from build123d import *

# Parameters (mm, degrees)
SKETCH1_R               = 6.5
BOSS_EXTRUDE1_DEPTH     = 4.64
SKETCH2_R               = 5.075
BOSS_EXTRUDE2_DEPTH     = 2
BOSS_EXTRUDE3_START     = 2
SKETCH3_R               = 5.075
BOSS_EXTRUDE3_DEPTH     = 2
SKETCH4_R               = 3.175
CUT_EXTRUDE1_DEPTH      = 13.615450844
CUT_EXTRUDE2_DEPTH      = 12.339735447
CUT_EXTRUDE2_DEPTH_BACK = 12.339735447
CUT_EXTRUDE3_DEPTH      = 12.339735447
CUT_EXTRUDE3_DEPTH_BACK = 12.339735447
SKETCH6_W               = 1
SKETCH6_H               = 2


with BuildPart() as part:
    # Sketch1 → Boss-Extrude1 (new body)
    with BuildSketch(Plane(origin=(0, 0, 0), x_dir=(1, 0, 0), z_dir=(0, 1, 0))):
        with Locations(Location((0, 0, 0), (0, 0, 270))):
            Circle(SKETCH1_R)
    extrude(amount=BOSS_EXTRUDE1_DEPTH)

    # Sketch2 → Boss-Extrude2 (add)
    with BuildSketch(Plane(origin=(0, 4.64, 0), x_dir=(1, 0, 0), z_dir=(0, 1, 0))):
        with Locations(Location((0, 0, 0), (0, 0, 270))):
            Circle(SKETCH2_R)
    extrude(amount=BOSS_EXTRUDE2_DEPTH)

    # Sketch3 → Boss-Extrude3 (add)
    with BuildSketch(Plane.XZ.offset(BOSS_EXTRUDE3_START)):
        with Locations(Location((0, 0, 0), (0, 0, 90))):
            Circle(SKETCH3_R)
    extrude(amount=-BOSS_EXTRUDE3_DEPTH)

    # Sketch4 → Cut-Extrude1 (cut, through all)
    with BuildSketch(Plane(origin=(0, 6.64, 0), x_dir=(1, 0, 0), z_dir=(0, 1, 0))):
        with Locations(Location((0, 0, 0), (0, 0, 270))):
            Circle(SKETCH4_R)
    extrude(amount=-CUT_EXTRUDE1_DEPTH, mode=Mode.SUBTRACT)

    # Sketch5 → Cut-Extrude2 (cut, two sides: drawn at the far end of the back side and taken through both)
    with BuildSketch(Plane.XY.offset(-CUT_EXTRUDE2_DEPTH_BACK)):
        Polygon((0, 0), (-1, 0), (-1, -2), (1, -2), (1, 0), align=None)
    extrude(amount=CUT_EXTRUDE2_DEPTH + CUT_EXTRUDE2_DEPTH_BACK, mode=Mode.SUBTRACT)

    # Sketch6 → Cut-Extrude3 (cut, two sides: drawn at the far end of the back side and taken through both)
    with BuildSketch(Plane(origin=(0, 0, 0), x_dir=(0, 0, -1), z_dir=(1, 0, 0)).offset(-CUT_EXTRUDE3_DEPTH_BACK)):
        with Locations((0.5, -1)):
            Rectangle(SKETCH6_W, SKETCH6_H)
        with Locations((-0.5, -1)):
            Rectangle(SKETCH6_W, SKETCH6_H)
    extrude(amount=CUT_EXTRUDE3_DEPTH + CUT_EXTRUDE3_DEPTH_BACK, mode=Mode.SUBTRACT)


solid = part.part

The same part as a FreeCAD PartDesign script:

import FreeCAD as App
import Part
import Sketcher
from FreeCAD import Vector


def add_polygon(sketch, points):
    """Adds a closed chain of lines whose ends are joined by coincident constraints."""
    first, n = sketch.GeometryCount, len(points)
    for a, b in zip(points, points[1:] + points[:1]):
        sketch.addGeometry(Part.LineSegment(App.Vector(*a, 0), App.Vector(*b, 0)), False)
    for i in range(n):
        sketch.addConstraint(Sketcher.Constraint("Coincident", first + i, 2, first + (i + 1) % n, 1))

doc = App.newDocument("Part")
body = doc.addObject("PartDesign::Body", "Body")

# Sketch on XZ plane
sketch1 = body.newObject("Sketcher::SketchObject", "Sketch")
sketch1.AttachmentSupport = (doc.getObject("XZ_Plane"), [""])
sketch1.MapMode = "FlatFace"
sketch1.addGeometry(Part.Circle(Vector(0, 0, 0), Vector(0, 0, 1), 6), False)
sketch1.addConstraint([
    Sketcher.Constraint("Coincident", 0, 3, -1, 1),
    Sketcher.Constraint("Diameter", 0, 13.0),
])
pad1 = body.newObject("PartDesign::Pad", "Pad")
pad1.Profile = sketch1
pad1.Length = 4.64
pad1.Reversed = True

# Sketch on XZ plane
sketch2 = body.newObject("Sketcher::SketchObject", "Sketch001")
sketch2.AttachmentSupport = (doc.getObject("XZ_Plane"), [""])
sketch2.MapMode = "FlatFace"
sketch2.AttachmentOffset = App.Placement(Vector(0, 0, -4.64), App.Rotation())
sketch2.addGeometry(Part.Circle(Vector(0, 0, 0), Vector(0, 0, 1), 5), False)
sketch2.addConstraint([
    Sketcher.Constraint("Coincident", 0, 3, -1, 1),
    Sketcher.Constraint("Diameter", 0, 10.15),
])
pad2 = body.newObject("PartDesign::Pad", "Pad001")
pad2.Profile = sketch2
pad2.Length = 2
pad2.Reversed = True

# Sketch on XZ plane
sketch3 = body.newObject("Sketcher::SketchObject", "Sketch002")
sketch3.AttachmentSupport = (doc.getObject("XZ_Plane"), [""])
sketch3.MapMode = "FlatFace"
sketch3.AttachmentOffset = App.Placement(Vector(0, 0, 2), App.Rotation())
sketch3.addGeometry(Part.Circle(Vector(0, 0, 0), Vector(0, 0, 1), 5), False)
sketch3.addConstraint([
    Sketcher.Constraint("Coincident", 0, 3, -1, 1),
    Sketcher.Constraint("Diameter", 0, 10.15),
])
pad3 = body.newObject("PartDesign::Pad", "Pad002")
pad3.Profile = sketch3
pad3.Length = 2
pad3.Reversed = True

# Sketch on XZ plane
sketch4 = body.newObject("Sketcher::SketchObject", "Sketch003")
sketch4.AttachmentSupport = (doc.getObject("XZ_Plane"), [""])
sketch4.MapMode = "FlatFace"
sketch4.AttachmentOffset = App.Placement(Vector(0, 0, -6.64), App.Rotation())
sketch4.addGeometry(Part.Circle(Vector(0, 0, 0), Vector(0, 0, 1), 3.2), False)
sketch4.addConstraint([
    Sketcher.Constraint("Coincident", 0, 3, -1, 1),
    Sketcher.Constraint("Diameter", 0, 6.35),
])
pocket1 = body.newObject("PartDesign::Pocket", "Pocket")
pocket1.Profile = sketch4
pocket1.Type = "ThroughAll"
pocket1.Reversed = True

# Sketch on XY plane
sketch5 = body.newObject("Sketcher::SketchObject", "Sketch004")
sketch5.AttachmentSupport = (doc.getObject("XY_Plane"), [""])
sketch5.MapMode = "FlatFace"
add_polygon(sketch5, [(-1, 0), (-1, -2), (1, -2), (1, 0)])  # lines 0-3
sketch5.addConstraint([
    Sketcher.Constraint("Vertical", 0),
    Sketcher.Constraint("Horizontal", 1),
    Sketcher.Constraint("Vertical", 2),
    Sketcher.Constraint("Horizontal", 3),
    Sketcher.Constraint("Symmetric", 2, 2, 3, 2, -1, 1),
    Sketcher.Constraint("Equal", 3, 0),
    Sketcher.Constraint("DistanceX", 1, 1, 1, 2, 2.0),
])
pocket2 = body.newObject("PartDesign::Pocket", "Pocket001")
pocket2.Profile = sketch5
pocket2.Type = "ThroughAll"
pocket2.Midplane = True

# Sketch on YZ plane
sketch6 = body.newObject("Sketcher::SketchObject", "Sketch005")
sketch6.AttachmentSupport = (doc.getObject("YZ_Plane"), [""])
sketch6.MapMode = "FlatFace"
add_polygon(sketch6, [(-2, -1), (0, -1), (0, 1), (-2, 1)])  # lines 0-3
sketch6.addConstraint([
    Sketcher.Constraint("Horizontal", 0),
    Sketcher.Constraint("Vertical", 1),
    Sketcher.Constraint("Horizontal", 2),
    Sketcher.Constraint("Vertical", 3),
    Sketcher.Constraint("Symmetric", 0, 2, 1, 2, -1, 1),
    Sketcher.Constraint("Equal", 2, 1),
    Sketcher.Constraint("DistanceX", 0, 1, 0, 2, 2.0),
])
pocket3 = body.newObject("PartDesign::Pocket", "Pocket002")
pocket3.Profile = sketch6
pocket3.Type = "ThroughAll"
pocket3.Midplane = True

doc.recompute()
